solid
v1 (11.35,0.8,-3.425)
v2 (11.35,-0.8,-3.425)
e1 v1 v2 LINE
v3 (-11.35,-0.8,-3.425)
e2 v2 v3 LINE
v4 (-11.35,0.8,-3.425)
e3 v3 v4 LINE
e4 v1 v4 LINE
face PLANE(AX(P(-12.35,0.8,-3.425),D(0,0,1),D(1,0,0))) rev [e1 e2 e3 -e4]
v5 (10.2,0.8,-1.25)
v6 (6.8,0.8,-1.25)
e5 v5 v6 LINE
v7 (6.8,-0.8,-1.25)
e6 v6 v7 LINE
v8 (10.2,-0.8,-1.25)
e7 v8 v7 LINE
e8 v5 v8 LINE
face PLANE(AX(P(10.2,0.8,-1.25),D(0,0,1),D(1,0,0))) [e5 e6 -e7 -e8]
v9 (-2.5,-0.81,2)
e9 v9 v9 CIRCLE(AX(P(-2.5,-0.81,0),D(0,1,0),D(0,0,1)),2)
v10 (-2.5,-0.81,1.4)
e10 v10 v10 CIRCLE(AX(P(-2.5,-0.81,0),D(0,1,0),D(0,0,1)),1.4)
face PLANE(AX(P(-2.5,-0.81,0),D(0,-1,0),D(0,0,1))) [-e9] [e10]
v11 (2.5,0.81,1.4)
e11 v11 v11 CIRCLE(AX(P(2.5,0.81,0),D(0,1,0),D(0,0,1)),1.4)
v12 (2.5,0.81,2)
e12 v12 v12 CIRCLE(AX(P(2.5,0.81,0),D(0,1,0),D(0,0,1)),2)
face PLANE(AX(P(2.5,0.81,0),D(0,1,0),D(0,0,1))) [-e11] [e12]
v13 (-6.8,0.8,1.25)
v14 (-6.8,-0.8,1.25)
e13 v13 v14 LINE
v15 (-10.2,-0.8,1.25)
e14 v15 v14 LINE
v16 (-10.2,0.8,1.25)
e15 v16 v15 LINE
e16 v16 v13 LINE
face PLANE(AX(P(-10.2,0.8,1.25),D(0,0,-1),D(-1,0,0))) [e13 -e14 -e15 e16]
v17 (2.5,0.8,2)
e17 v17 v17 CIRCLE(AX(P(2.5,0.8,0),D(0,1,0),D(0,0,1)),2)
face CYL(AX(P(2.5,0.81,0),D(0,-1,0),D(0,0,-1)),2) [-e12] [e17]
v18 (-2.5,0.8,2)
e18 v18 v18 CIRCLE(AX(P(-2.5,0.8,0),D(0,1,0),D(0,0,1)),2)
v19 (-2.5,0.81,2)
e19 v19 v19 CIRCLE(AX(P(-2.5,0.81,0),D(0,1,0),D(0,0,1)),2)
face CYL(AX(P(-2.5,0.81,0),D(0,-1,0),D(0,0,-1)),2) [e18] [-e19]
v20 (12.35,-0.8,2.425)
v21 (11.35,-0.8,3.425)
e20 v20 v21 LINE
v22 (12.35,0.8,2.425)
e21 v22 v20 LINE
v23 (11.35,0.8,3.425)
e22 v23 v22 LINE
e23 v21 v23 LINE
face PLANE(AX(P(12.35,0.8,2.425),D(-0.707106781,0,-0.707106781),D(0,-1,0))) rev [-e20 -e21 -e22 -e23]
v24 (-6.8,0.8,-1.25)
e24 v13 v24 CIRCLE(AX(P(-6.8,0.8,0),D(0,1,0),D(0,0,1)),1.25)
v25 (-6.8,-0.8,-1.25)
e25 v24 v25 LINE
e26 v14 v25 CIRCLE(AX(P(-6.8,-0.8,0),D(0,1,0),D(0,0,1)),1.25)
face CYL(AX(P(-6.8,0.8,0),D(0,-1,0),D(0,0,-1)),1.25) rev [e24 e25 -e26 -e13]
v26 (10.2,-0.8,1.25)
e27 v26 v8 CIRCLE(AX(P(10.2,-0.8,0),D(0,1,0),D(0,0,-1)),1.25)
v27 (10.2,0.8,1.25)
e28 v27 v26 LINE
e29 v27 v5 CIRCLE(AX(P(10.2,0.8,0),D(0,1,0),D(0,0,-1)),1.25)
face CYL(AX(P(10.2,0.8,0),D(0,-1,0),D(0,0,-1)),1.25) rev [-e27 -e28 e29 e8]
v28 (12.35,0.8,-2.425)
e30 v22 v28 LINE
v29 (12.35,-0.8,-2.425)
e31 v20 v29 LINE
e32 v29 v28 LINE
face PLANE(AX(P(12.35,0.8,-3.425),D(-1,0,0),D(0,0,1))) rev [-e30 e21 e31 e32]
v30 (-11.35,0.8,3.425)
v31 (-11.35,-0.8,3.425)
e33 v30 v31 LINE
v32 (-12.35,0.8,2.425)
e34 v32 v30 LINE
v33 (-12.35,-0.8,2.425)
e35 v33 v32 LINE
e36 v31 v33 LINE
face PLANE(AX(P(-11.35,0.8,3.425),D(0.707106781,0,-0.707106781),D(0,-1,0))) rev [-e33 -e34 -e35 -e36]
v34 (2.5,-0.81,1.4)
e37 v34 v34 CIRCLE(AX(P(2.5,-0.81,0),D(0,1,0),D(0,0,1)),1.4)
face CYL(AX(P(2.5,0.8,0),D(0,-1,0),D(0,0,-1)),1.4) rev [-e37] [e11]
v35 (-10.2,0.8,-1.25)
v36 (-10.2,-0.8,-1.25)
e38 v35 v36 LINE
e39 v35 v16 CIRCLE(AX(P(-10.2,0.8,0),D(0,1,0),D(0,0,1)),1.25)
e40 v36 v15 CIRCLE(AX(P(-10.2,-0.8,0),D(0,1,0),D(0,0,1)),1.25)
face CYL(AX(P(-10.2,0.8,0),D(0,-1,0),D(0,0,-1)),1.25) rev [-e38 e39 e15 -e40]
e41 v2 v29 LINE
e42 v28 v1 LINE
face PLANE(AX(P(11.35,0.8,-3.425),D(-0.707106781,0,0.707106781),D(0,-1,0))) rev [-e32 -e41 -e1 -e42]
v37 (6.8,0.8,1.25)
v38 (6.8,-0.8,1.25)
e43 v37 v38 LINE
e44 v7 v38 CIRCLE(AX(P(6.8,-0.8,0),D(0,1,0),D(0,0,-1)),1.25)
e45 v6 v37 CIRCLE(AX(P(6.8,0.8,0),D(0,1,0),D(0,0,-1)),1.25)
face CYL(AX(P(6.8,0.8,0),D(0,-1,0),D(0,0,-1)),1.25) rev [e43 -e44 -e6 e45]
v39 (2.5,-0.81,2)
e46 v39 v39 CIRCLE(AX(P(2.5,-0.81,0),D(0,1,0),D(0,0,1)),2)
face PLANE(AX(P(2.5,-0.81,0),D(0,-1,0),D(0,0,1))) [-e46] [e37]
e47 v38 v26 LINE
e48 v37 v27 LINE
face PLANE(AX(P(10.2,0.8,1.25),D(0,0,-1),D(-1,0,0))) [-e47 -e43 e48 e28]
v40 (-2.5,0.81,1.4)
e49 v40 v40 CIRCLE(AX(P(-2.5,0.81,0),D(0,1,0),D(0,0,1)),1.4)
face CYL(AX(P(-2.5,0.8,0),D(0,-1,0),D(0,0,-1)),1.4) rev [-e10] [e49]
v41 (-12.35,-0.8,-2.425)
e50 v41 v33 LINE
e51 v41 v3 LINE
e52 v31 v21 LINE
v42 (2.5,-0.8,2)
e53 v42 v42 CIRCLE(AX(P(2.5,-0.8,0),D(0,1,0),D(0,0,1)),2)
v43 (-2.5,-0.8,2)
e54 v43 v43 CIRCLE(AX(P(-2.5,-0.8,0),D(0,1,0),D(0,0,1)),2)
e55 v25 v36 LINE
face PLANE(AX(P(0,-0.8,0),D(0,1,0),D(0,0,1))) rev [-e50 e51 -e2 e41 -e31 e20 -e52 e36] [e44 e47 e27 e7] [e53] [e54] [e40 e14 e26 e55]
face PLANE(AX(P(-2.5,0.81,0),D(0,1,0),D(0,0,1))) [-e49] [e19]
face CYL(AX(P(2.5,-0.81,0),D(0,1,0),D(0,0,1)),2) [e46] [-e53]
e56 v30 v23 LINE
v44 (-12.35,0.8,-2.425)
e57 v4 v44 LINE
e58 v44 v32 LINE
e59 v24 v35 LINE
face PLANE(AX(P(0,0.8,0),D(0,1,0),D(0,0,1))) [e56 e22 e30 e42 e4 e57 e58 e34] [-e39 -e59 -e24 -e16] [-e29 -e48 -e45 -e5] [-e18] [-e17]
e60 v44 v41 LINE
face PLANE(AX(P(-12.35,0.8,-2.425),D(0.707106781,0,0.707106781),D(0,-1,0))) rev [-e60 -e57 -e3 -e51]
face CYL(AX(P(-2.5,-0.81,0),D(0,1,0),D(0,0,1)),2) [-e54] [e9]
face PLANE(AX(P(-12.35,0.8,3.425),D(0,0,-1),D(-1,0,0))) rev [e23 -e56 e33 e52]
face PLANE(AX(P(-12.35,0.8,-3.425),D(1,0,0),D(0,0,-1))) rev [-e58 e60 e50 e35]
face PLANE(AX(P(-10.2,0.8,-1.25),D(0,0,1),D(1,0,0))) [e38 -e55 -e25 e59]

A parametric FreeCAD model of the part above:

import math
import FreeCAD as App
import Part
import Sketcher


def edges_at(feature, points):
    """Names of the edges that pass closest to the given points."""
    edges = feature.Shape.Edges
    near = lambda p: min(range(len(edges)), key=lambda i: edges[i].distToShape(Part.Vertex(*p))[0])
    return sorted({f"Edge{near(p) + 1}" for p in points})


def add_polygon(sketch, points):
    """Adds a closed chain of lines whose ends are joined by coincident constraints."""
    first, n = sketch.GeometryCount, len(points)
    for a, b in zip(points, points[1:] + points[:1]):
        sketch.addGeometry(Part.LineSegment(App.Vector(*a, 0), App.Vector(*b, 0)), False)
    for i in range(n):
        sketch.addConstraint(Sketcher.Constraint("Coincident", first + i, 2, first + (i + 1) % n, 1))

doc = App.newDocument("Part")
params = doc.addObject("Spreadsheet::Sheet", "Params")
for row, (alias, value) in enumerate([
    ("sketch1_diameter", "2.8 mm"),
    ("sketch1_radius", "1.25 mm"),
    ("sketch1_width", "24.7 mm"),
    ("sketch1_width2", "3.4 mm"),
    ("sketch1_height", "6.85 mm"),
    ("pad1_length", "1.6 mm"),
    ("chamfer_size", "1 mm"),
    ("sketch2_diameter", "4 mm"),
    ("sketch2_diameter2", "2.8 mm"),
    ("pad2_length", "0.01 mm"),
], start=1):
    params.set(f"A{row}", alias)
    params.set(f"B{row}", "=" + value)
    params.setAlias(f"B{row}", alias)

body = doc.addObject("PartDesign::Body", "Body")

# Sketch on XZ plane
sketch1 = body.newObject("Sketcher::SketchObject", "Sketch")
sketch1.AttachmentSupport = (doc.getObject("XZ_Plane"), [""])
sketch1.MapMode = "FlatFace"
add_polygon(sketch1, [(-12.3, -3.4), (-12.3, 3.4), (12.3, 3.4), (12.3, -3.4)])  # lines 0-3
sketch1.addGeometry(Part.ArcOfCircle(Part.Circle(App.Vector(-10.2, 0, 0), App.Vector(0, 0, 1), 1.2), math.radians(90), math.radians(270)), False)  # 4
sketch1.addGeometry(Part.LineSegment(App.Vector(-10.2, -1.2, 0), App.Vector(-6.8, -1.2, 0)), False)  # 5
sketch1.addGeometry(Part.ArcOfCircle(Part.Circle(App.Vector(-6.8, 0, 0), App.Vector(0, 0, 1), 1.2), math.radians(-90), math.radians(90)), False)  # 6
sketch1.addGeometry(Part.LineSegment(App.Vector(-6.8, 1.2, 0), App.Vector(-10.2, 1.2, 0)), False)  # 7
sketch1.addGeometry(Part.Circle(App.Vector(-2.5, 0, 0), App.Vector(0, 0, 1), 1.4), False)  # 8
sketch1.addGeometry(Part.Circle(App.Vector(2.5, 0, 0), App.Vector(0, 0, 1), 1.4), False)  # 9
sketch1.addGeometry(Part.LineSegment(App.Vector(6.8, -1.2, 0), App.Vector(10.2, -1.2, 0)), False)  # 10
sketch1.addGeometry(Part.ArcOfCircle(Part.Circle(App.Vector(10.2, 0, 0), App.Vector(0, 0, 1), 1.2), math.radians(-90), math.radians(90)), False)  # 11
sketch1.addGeometry(Part.LineSegment(App.Vector(10.2, 1.2, 0), App.Vector(6.8, 1.2, 0)), False)  # 12
sketch1.addGeometry(Part.ArcOfCircle(Part.Circle(App.Vector(6.8, 0, 0), App.Vector(0, 0, 1), 1.2), math.radians(90), math.radians(270)), False)  # 13
sketch1.addConstraint(Sketcher.Constraint("Tangent", 4, 2, 5, 1))
sketch1.addConstraint(Sketcher.Constraint("Tangent", 5, 2, 6, 1))
sketch1.addConstraint(Sketcher.Constraint("Tangent", 6, 2, 7, 1))
sketch1.addConstraint(Sketcher.Constraint("Tangent", 7, 2, 4, 1))
sketch1.addConstraint(Sketcher.Constraint("Tangent", 10, 2, 11, 1))
sketch1.addConstraint(Sketcher.Constraint("Tangent", 11, 2, 12, 1))
sketch1.addConstraint(Sketcher.Constraint("Tangent", 12, 2, 13, 1))
sketch1.addConstraint(Sketcher.Constraint("Tangent", 13, 2, 10, 1))
sketch1.addConstraint(Sketcher.Constraint("Vertical", 0))
sketch1.addConstraint(Sketcher.Constraint("Horizontal", 1))
sketch1.addConstraint(Sketcher.Constraint("Vertical", 2))
sketch1.addConstraint(Sketcher.Constraint("Horizontal", 3))
sketch1.addConstraint(Sketcher.Constraint("Horizontal", 5))
sketch1.addConstraint(Sketcher.Constraint("Horizontal", 7))
sketch1.addConstraint(Sketcher.Constraint("Horizontal", 10))
sketch1.addConstraint(Sketcher.Constraint("Horizontal", 12))
sketch1.addConstraint(Sketcher.Constraint("Equal", 8, 9))
sketch1.addConstraint(Sketcher.Constraint("Equal", 6, 11))
sketch1.addConstraint(Sketcher.Constraint("Symmetric", 8, 3, 9, 3, -1, 1))
sketch1.addConstraint(Sketcher.Constraint("Symmetric", 4, 3, 11, 3, -1, 1))
sketch1.addConstraint(Sketcher.Constraint("Symmetric", 0, 2, 2, 2, -1, 1))
sketch1.addConstraint(Sketcher.Constraint("Symmetric", 6, 3, 13, 3, -2))
sketch1.addConstraint(Sketcher.Constraint("PointOnObject", 8, 3, -1))
sketch1.addConstraint(Sketcher.Constraint("Diameter", 8, 2.8))
sketch1.addConstraint(Sketcher.Constraint("Radius", 4, 1.25))
sketch1.addConstraint(Sketcher.Constraint("DistanceX", 1, 1, 1, 2, 24.7))
sketch1.addConstraint(Sketcher.Constraint("DistanceX", 5, 1, 5, 2, 3.4))
sketch1.addConstraint(Sketcher.Constraint("DistanceX", 8, 3, 9, 3, 5.0))
sketch1.addConstraint(Sketcher.Constraint("DistanceX", 6, 3, 11, 3, 17.0))
sketch1.addConstraint(Sketcher.Constraint("DistanceY", 0, 1, 0, 2, 6.85))
sketch1.setExpression("Constraints[27]", "Params.sketch1_diameter")
sketch1.setExpression("Constraints[28]", "Params.sketch1_radius")
sketch1.setExpression("Constraints[29]", "Params.sketch1_width")
sketch1.setExpression("Constraints[30]", "Params.sketch1_width2")
sketch1.setExpression("Constraints[33]", "Params.sketch1_height")
pad1 = body.newObject("PartDesign::Pad", "Pad")
pad1.Profile = sketch1
pad1.setExpression("Length", "Params.pad1_length")
pad1.Midplane = True
doc.recompute()

chamfer = body.newObject("PartDesign::Chamfer", "Chamfer")
chamfer.Base = (pad1, edges_at(pad1, [
    (12.35, 0, 3.425),
    (-12.35, 0, 3.425),
    (-12.35, 0, -3.425),
    (12.35, 0, -3.425),
]))
chamfer.setExpression("Size", "Params.chamfer_size")

# Sketch on XZ plane
sketch2 = body.newObject("Sketcher::SketchObject", "Sketch001")
sketch2.AttachmentSupport = (doc.getObject("XZ_Plane"), [""])
sketch2.MapMode = "FlatFace"
sketch2.AttachmentOffset = App.Placement(App.Vector(0, 0, -0.8), App.Rotation())
sketch2.addGeometry(Part.Circle(App.Vector(-2.5, 0, 0), App.Vector(0, 0, 1), 2), False)
sketch2.addGeometry(Part.Circle(App.Vector(-2.5, 0, 0), App.Vector(0, 0, 1), 1.4), False)
sketch2.addGeometry(Part.Circle(App.Vector(2.5, 0, 0), App.Vector(0, 0, 1), 2), False)
sketch2.addGeometry(Part.Circle(App.Vector(2.5, 0, 0), App.Vector(0, 0, 1), 1.4), False)
sketch2.addConstraint(Sketcher.Constraint("Coincident", 1, 3, 0, 3))
sketch2.addConstraint(Sketcher.Constraint("Coincident", 3, 3, 2, 3))
sketch2.addConstraint(Sketcher.Constraint("Equal", 0, 2))
sketch2.addConstraint(Sketcher.Constraint("Equal", 1, 3))
sketch2.addConstraint(Sketcher.Constraint("Symmetric", 0, 3, 2, 3, -1, 1))
sketch2.addConstraint(Sketcher.Constraint("PointOnObject", 0, 3, -1))
sketch2.addConstraint(Sketcher.Constraint("Diameter", 0, 4.0))
sketch2.addConstraint(Sketcher.Constraint("Diameter", 1, 2.8))
sketch2.addConstraint(Sketcher.Constraint("DistanceX", 0, 3, 2, 3, 5.0))
sketch2.setExpression("Constraints[6]", "Params.sketch2_diameter")
sketch2.setExpression("Constraints[7]", "Params.sketch2_diameter2")
pad2 = body.newObject("PartDesign::Pad", "Pad001")
pad2.Profile = sketch2
pad2.setExpression("Length", "Params.pad2_length")
pad2.Reversed = True
doc.recompute()

mirrored = body.newObject("PartDesign::Mirrored", "Mirrored")
mirrored.Originals = [pad2]
mirrored.MirrorPlane = (doc.getObject("XZ_Plane"), [""])
body.Tip = mirrored

doc.recompute()
